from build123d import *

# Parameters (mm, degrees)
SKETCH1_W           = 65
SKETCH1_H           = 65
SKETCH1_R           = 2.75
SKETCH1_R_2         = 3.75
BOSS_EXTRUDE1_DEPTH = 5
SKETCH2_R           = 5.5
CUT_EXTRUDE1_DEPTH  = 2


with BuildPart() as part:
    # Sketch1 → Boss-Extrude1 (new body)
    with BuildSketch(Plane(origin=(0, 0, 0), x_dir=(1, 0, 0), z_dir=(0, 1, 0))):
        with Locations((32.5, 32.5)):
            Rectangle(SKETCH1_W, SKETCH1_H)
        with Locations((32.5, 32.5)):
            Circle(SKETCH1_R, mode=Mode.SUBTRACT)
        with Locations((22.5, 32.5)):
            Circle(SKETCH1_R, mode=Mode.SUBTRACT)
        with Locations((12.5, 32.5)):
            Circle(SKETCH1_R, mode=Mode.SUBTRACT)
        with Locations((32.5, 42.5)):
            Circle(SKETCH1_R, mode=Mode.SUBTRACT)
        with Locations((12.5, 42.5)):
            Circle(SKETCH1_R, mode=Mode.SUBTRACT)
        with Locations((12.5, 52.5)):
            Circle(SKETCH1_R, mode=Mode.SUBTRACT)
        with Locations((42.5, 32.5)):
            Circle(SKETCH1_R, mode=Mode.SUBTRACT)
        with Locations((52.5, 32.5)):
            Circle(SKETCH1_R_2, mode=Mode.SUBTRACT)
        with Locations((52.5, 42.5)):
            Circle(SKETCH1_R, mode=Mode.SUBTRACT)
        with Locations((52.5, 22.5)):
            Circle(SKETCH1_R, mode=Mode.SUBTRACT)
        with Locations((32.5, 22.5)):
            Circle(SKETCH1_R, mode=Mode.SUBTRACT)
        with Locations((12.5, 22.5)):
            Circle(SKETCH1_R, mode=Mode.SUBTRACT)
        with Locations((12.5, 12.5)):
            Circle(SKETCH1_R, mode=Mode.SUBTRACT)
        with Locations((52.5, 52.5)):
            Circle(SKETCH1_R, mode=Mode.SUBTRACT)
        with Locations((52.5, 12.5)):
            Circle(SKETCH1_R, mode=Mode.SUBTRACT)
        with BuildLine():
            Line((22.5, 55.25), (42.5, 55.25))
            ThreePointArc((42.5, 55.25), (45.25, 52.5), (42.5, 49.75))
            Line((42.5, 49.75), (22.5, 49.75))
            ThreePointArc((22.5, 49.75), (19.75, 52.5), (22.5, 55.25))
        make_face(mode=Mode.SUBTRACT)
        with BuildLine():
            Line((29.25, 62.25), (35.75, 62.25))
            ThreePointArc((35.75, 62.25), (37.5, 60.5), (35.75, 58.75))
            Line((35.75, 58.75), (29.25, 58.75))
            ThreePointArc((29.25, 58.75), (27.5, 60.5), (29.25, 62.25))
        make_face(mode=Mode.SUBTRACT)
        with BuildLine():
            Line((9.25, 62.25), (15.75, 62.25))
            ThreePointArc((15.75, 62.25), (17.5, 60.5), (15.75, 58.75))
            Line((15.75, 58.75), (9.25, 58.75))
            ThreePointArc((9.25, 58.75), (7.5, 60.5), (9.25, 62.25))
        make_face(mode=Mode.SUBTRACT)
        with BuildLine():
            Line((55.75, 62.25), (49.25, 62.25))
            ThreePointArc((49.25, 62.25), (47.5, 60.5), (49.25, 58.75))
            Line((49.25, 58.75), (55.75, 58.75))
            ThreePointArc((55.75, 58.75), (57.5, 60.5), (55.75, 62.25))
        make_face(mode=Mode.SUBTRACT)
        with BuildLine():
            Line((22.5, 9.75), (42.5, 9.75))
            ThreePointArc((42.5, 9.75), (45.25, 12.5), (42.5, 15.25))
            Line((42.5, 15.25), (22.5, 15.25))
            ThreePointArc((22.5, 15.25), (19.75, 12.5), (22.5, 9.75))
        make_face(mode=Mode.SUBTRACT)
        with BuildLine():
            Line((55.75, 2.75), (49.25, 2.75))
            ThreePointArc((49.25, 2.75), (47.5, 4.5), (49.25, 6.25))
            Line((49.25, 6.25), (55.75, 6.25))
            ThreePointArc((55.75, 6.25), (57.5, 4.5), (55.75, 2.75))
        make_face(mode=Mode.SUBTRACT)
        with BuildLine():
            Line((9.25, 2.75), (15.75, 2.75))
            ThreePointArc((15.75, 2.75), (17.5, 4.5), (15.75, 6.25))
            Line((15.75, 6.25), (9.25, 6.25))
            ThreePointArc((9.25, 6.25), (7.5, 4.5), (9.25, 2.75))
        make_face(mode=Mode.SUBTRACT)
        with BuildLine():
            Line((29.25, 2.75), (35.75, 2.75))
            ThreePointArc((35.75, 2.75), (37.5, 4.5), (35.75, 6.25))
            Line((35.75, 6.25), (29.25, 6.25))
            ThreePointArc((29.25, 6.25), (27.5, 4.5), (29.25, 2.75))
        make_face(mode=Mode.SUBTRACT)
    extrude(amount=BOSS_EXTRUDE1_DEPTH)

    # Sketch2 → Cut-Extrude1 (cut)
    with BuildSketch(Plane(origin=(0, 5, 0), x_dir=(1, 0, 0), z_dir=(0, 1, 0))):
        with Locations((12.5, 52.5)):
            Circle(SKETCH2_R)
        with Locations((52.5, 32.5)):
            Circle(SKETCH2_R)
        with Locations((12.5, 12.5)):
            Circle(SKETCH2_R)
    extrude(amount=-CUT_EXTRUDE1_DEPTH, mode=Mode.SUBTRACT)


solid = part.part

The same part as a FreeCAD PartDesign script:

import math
import FreeCAD as App
import Part
import Sketcher

V = App.Vector

doc = App.newDocument("Part")
body = doc.addObject("PartDesign::Body", "Body")

# Sketch on XZ plane
sketch1 = doc.addObject("Sketcher::SketchObject", "Sketch")
body.addObject(sketch1)
sketch1.AttachmentSupport = (doc.XZ_Plane, [""])
sketch1.MapMode = "FlatFace"
sketch1.addGeometry(Part.LineSegment(V(0, -65, 0), V(0, 0, 0)), False)
sketch1.addGeometry(Part.LineSegment(V(0, 0, 0), V(65, 0, 0)), False)
sketch1.addGeometry(Part.LineSegment(V(65, 0, 0), V(65, -65, 0)), False)
sketch1.addGeometry(Part.LineSegment(V(65, -65, 0), V(0, -65, 0)), False)
sketch1.addGeometry(Part.LineSegment(V(15.75, -2.75, 0), V(9.25, -2.75, 0)), False)
sketch1.addGeometry(Part.ArcOfCircle(Part.Circle(V(9.25, -4.5, 0), V(0, 0, 1), 1.75), math.radians(90), math.radians(270)), False)
sketch1.addGeometry(Part.LineSegment(V(9.25, -6.25, 0), V(15.75, -6.25, 0)), False)
sketch1.addGeometry(Part.ArcOfCircle(Part.Circle(V(15.75, -4.5, 0), V(0, 0, 1), 1.75), math.radians(-90), math.radians(90)), False)
sketch1.addGeometry(Part.Circle(V(12.5, -12.5, 0), V(0, 0, 1), 2.75), False)
sketch1.addGeometry(Part.Circle(V(12.5, -22.5, 0), V(0, 0, 1), 2.75), False)
sketch1.addGeometry(Part.LineSegment(V(35.75, -2.75, 0), V(29.25, -2.75, 0)), False)
sketch1.addGeometry(Part.ArcOfCircle(Part.Circle(V(29.25, -4.5, 0), V(0, 0, 1), 1.75), math.radians(90), math.radians(270)), False)
sketch1.addGeometry(Part.LineSegment(V(29.25, -6.25, 0), V(35.75, -6.25, 0)), False)
sketch1.addGeometry(Part.ArcOfCircle(Part.Circle(V(35.75, -4.5, 0), V(0, 0, 1), 1.75), math.radians(-90), math.radians(90)), False)
sketch1.addGeometry(Part.LineSegment(V(42.5, -9.75, 0), V(22.5, -9.75, 0)), False)
sketch1.addGeometry(Part.ArcOfCircle(Part.Circle(V(22.5, -12.5, 0), V(0, 0, 1), 2.75), math.radians(90), math.radians(270)), False)
sketch1.addGeometry(Part.LineSegment(V(22.5, -15.25, 0), V(42.5, -15.25, 0)), False)
sketch1.addGeometry(Part.ArcOfCircle(Part.Circle(V(42.5, -12.5, 0), V(0, 0, 1), 2.75), math.radians(-90), math.radians(90)), False)
sketch1.addGeometry(Part.ArcOfCircle(Part.Circle(V(55.75, -4.5, 0), V(0, 0, 1), 1.75), math.radians(-90), math.radians(90)), False)
sketch1.addGeometry(Part.LineSegment(V(55.75, -2.75, 0), V(49.25, -2.75, 0)), False)
sketch1.addGeometry(Part.ArcOfCircle(Part.Circle(V(49.25, -4.5, 0), V(0, 0, 1), 1.75), math.radians(90), math.radians(270)), False)
sketch1.addGeometry(Part.LineSegment(V(49.25, -6.25, 0), V(55.75, -6.25, 0)), False)
sketch1.addGeometry(Part.Circle(V(52.5, -12.5, 0), V(0, 0, 1), 2.75), False)
sketch1.addGeometry(Part.Circle(V(32.5, -22.5, 0), V(0, 0, 1), 2.75), False)
sketch1.addGeometry(Part.Circle(V(52.5, -22.5, 0), V(0, 0, 1), 2.75), False)
sketch1.addGeometry(Part.Circle(V(12.5, -32.5, 0), V(0, 0, 1), 2.75), False)
sketch1.addGeometry(Part.Circle(V(12.5, -42.5, 0), V(0, 0, 1), 2.75), False)
sketch1.addGeometry(Part.Circle(V(22.5, -32.5, 0), V(0, 0, 1), 2.75), False)
sketch1.addGeometry(Part.Circle(V(12.5, -52.5, 0), V(0, 0, 1), 2.75), False)
sketch1.addGeometry(Part.ArcOfCircle(Part.Circle(V(9.25, -60.5, 0), V(0, 0, 1), 1.75), math.radians(90), math.radians(270)), False)
sketch1.addGeometry(Part.LineSegment(V(9.25, -62.25, 0), V(15.75, -62.25, 0)), False)
sketch1.addGeometry(Part.ArcOfCircle(Part.Circle(V(15.75, -60.5, 0), V(0, 0, 1), 1.75), math.radians(-90), math.radians(90)), False)
sketch1.addGeometry(Part.LineSegment(V(15.75, -58.75, 0), V(9.25, -58.75, 0)), False)
sketch1.addGeometry(Part.Circle(V(32.5, -32.5, 0), V(0, 0, 1), 2.75), False)
sketch1.addGeometry(Part.Circle(V(42.5, -32.5, 0), V(0, 0, 1), 2.75), False)
sketch1.addGeometry(Part.Circle(V(32.5, -42.5, 0), V(0, 0, 1), 2.75), False)
sketch1.addGeometry(Part.Circle(V(52.5, -32.5, 0), V(0, 0, 1), 3.75), False)
sketch1.addGeometry(Part.Circle(V(52.5, -42.5, 0), V(0, 0, 1), 2.75), False)
sketch1.addGeometry(Part.ArcOfCircle(Part.Circle(V(22.5, -52.5, 0), V(0, 0, 1), 2.75), math.radians(90), math.radians(270)), False)
sketch1.addGeometry(Part.LineSegment(V(22.5, -55.25, 0), V(42.5, -55.25, 0)), False)
sketch1.addGeometry(Part.ArcOfCircle(Part.Circle(V(42.5, -52.5, 0), V(0, 0, 1), 2.75), math.radians(-90), math.radians(90)), False)
sketch1.addGeometry(Part.LineSegment(V(42.5, -49.75, 0), V(22.5, -49.75, 0)), False)
sketch1.addGeometry(Part.ArcOfCircle(Part.Circle(V(29.25, -60.5, 0), V(0, 0, 1), 1.75), math.radians(90), math.radians(270)), False)
sketch1.addGeometry(Part.LineSegment(V(29.25, -62.25, 0), V(35.75, -62.25, 0)), False)
sketch1.addGeometry(Part.ArcOfCircle(Part.Circle(V(35.75, -60.5, 0), V(0, 0, 1), 1.75), math.radians(-90), math.radians(90)), False)
sketch1.addGeometry(Part.LineSegment(V(35.75, -58.75, 0), V(29.25, -58.75, 0)), False)
sketch1.addGeometry(Part.Circle(V(52.5, -52.5, 0), V(0, 0, 1), 2.75), False)
sketch1.addGeometry(Part.LineSegment(V(49.25, -62.25, 0), V(55.75, -62.25, 0)), False)
sketch1.addGeometry(Part.ArcOfCircle(Part.Circle(V(55.75, -60.5, 0), V(0, 0, 1), 1.75), math.radians(-90), math.radians(90)), False)
sketch1.addGeometry(Part.LineSegment(V(55.75, -58.75, 0), V(49.25, -58.75, 0)), False)
sketch1.addGeometry(Part.ArcOfCircle(Part.Circle(V(49.25, -60.5, 0), V(0, 0, 1), 1.75), math.radians(90), math.radians(270)), False)
sketch1.addConstraint(Sketcher.Constraint("Coincident", 0, 2, 1, 1))
sketch1.addConstraint(Sketcher.Constraint("Coincident", 1, 2, 2, 1))
sketch1.addConstraint(Sketcher.Constraint("Coincident", 2, 2, 3, 1))
sketch1.addConstraint(Sketcher.Constraint("Coincident", 3, 2, 0, 1))
sketch1.addConstraint(Sketcher.Constraint("Tangent", 4, 2, 5, 1))
sketch1.addConstraint(Sketcher.Constraint("Tangent", 5, 2, 6, 1))
sketch1.addConstraint(Sketcher.Constraint("Tangent", 6, 2, 7, 1))
sketch1.addConstraint(Sketcher.Constraint("Tangent", 7, 2, 4, 1))
sketch1.addConstraint(Sketcher.Constraint("Tangent", 10, 2, 11, 1))
sketch1.addConstraint(Sketcher.Constraint("Tangent", 11, 2, 12, 1))
sketch1.addConstraint(Sketcher.Constraint("Tangent", 12, 2, 13, 1))
sketch1.addConstraint(Sketcher.Constraint("Tangent", 13, 2, 10, 1))
sketch1.addConstraint(Sketcher.Constraint("Tangent", 14, 2, 15, 1))
sketch1.addConstraint(Sketcher.Constraint("Tangent", 15, 2, 16, 1))
sketch1.addConstraint(Sketcher.Constraint("Tangent", 16, 2, 17, 1))
sketch1.addConstraint(Sketcher.Constraint("Tangent", 17, 2, 14, 1))
sketch1.addConstraint(Sketcher.Constraint("Tangent", 18, 2, 19, 1))
sketch1.addConstraint(Sketcher.Constraint("Tangent", 19, 2, 20, 1))
sketch1.addConstraint(Sketcher.Constraint("Tangent", 20, 2, 21, 1))
sketch1.addConstraint(Sketcher.Constraint("Tangent", 21, 2, 18, 1))
sketch1.addConstraint(Sketcher.Constraint("Tangent", 29, 2, 30, 1))
sketch1.addConstraint(Sketcher.Constraint("Tangent", 30, 2, 31, 1))
sketch1.addConstraint(Sketcher.Constraint("Tangent", 31, 2, 32, 1))
sketch1.addConstraint(Sketcher.Constraint("Tangent", 32, 2, 29, 1))
sketch1.addConstraint(Sketcher.Constraint("Tangent", 38, 2, 39, 1))
sketch1.addConstraint(Sketcher.Constraint("Tangent", 39, 2, 40, 1))
sketch1.addConstraint(Sketcher.Constraint("Tangent", 40, 2, 41, 1))
sketch1.addConstraint(Sketcher.Constraint("Tangent", 41, 2, 38, 1))
sketch1.addConstraint(Sketcher.Constraint("Tangent", 42, 2, 43, 1))
sketch1.addConstraint(Sketcher.Constraint("Tangent", 43, 2, 44, 1))
sketch1.addConstraint(Sketcher.Constraint("Tangent", 44, 2, 45, 1))
sketch1.addConstraint(Sketcher.Constraint("Tangent", 45, 2, 42, 1))
sketch1.addConstraint(Sketcher.Constraint("Tangent", 47, 2, 48, 1))
sketch1.addConstraint(Sketcher.Constraint("Tangent", 48, 2, 49, 1))
sketch1.addConstraint(Sketcher.Constraint("Tangent", 49, 2, 50, 1))
sketch1.addConstraint(Sketcher.Constraint("Tangent", 50, 2, 47, 1))
sketch1.addConstraint(Sketcher.Constraint("Vertical", 0))
sketch1.addConstraint(Sketcher.Constraint("Horizontal", 1))
sketch1.addConstraint(Sketcher.Constraint("Vertical", 2))
sketch1.addConstraint(Sketcher.Constraint("Horizontal", 3))
sketch1.addConstraint(Sketcher.Constraint("Horizontal", 4))
sketch1.addConstraint(Sketcher.Constraint("Horizontal", 6))
sketch1.addConstraint(Sketcher.Constraint("Horizontal", 10))
sketch1.addConstraint(Sketcher.Constraint("Horizontal", 12))
sketch1.addConstraint(Sketcher.Constraint("Horizontal", 14))
sketch1.addConstraint(Sketcher.Constraint("Horizontal", 16))
sketch1.addConstraint(Sketcher.Constraint("Horizontal", 19))
sketch1.addConstraint(Sketcher.Constraint("Horizontal", 21))
sketch1.addConstraint(Sketcher.Constraint("Horizontal", 30))
sketch1.addConstraint(Sketcher.Constraint("Horizontal", 32))
sketch1.addConstraint(Sketcher.Constraint("Horizontal", 39))
sketch1.addConstraint(Sketcher.Constraint("Horizontal", 41))
sketch1.addConstraint(Sketcher.Constraint("Horizontal", 43))
sketch1.addConstraint(Sketcher.Constraint("Horizontal", 45))
sketch1.addConstraint(Sketcher.Constraint("Horizontal", 47))
sketch1.addConstraint(Sketcher.Constraint("Horizontal", 49))
sketch1.addConstraint(Sketcher.Constraint("Coincident", 0, 2, -1, 1))
sketch1.addConstraint(Sketcher.Constraint("Equal", 8, 9))
sketch1.addConstraint(Sketcher.Constraint("Equal", 7, 11))
sketch1.addConstraint(Sketcher.Constraint("Equal", 9, 15))
sketch1.addConstraint(Sketcher.Constraint("Equal", 13, 18))
sketch1.addConstraint(Sketcher.Constraint("Equal", 17, 22))
sketch1.addConstraint(Sketcher.Constraint("Equal", 22, 23))
sketch1.addConstraint(Sketcher.Constraint("Equal", 23, 24))
sketch1.addConstraint(Sketcher.Constraint("Equal", 24, 25))
sketch1.addConstraint(Sketcher.Constraint("Equal", 25, 26))
sketch1.addConstraint(Sketcher.Constraint("Equal", 26, 27))
sketch1.addConstraint(Sketcher.Constraint("Equal", 27, 28))
sketch1.addConstraint(Sketcher.Constraint("Equal", 20, 29))
sketch1.addConstraint(Sketcher.Constraint("Equal", 28, 33))
sketch1.addConstraint(Sketcher.Constraint("Equal", 33, 34))
sketch1.addConstraint(Sketcher.Constraint("Equal", 34, 35))
sketch1.addConstraint(Sketcher.Constraint("Equal", 35, 37))
sketch1.addConstraint(Sketcher.Constraint("Equal", 37, 38))
sketch1.addConstraint(Sketcher.Constraint("Equal", 31, 42))
sketch1.addConstraint(Sketcher.Constraint("Equal", 40, 46))
sketch1.addConstraint(Sketcher.Constraint("Equal", 44, 48))
sketch1.addConstraint(Sketcher.Constraint("Horizontal", 7, 3, 11, 3))
sketch1.addConstraint(Sketcher.Constraint("Horizontal", 8, 3, 15, 3))
sketch1.addConstraint(Sketcher.Constraint("Horizontal", 13, 3, 18, 3))
sketch1.addConstraint(Sketcher.Constraint("Horizontal", 17, 3, 22, 3))
sketch1.addConstraint(Sketcher.Constraint("Horizontal", 9, 3, 23, 3))
sketch1.addConstraint(Sketcher.Constraint("Horizontal", 23, 3, 24, 3))
sketch1.addConstraint(Sketcher.Constraint("Horizontal", 25, 3, 27, 3))
sketch1.addConstraint(Sketcher.Constraint("Horizontal", 27, 3, 33, 3))
sketch1.addConstraint(Sketcher.Constraint("Horizontal", 33, 3, 34, 3))
sketch1.addConstraint(Sketcher.Constraint("Horizontal", 26, 3, 35, 3))
sketch1.addConstraint(Sketcher.Constraint("Horizontal", 34, 3, 36, 3))
sketch1.addConstraint(Sketcher.Constraint("Horizontal", 35, 3, 37, 3))
sketch1.addConstraint(Sketcher.Constraint("Horizontal", 28, 3, 38, 3))
sketch1.addConstraint(Sketcher.Constraint("Horizontal", 31, 3, 42, 3))
sketch1.addConstraint(Sketcher.Constraint("Horizontal", 40, 3, 46, 3))
sketch1.addConstraint(Sketcher.Constraint("Horizontal", 44, 3, 48, 3))
sketch1.addConstraint(Sketcher.Constraint("Vertical", 8, 3, 9, 3))
sketch1.addConstraint(Sketcher.Constraint("Vertical", 22, 3, 24, 3))
sketch1.addConstraint(Sketcher.Constraint("Vertical", 9, 3, 25, 3))
sketch1.addConstraint(Sketcher.Constraint("Vertical", 25, 3, 26, 3))
sketch1.addConstraint(Sketcher.Constraint("Vertical", 15, 3, 27, 3))
sketch1.addConstraint(Sketcher.Constraint("Vertical", 26, 3, 28, 3))
sketch1.addConstraint(Sketcher.Constraint("Vertical", 5, 3, 29, 3))
sketch1.addConstraint(Sketcher.Constraint("Vertical", 7, 3, 31, 3))
sketch1.addConstraint(Sketcher.Constraint("Vertical", 23, 3, 33, 3))
sketch1.addConstraint(Sketcher.Constraint("Vertical", 17, 3, 34, 3))
sketch1.addConstraint(Sketcher.Constraint("Vertical", 33, 3, 35, 3))
sketch1.addConstraint(Sketcher.Constraint("Vertical", 24, 3, 36, 3))
sketch1.addConstraint(Sketcher.Constraint("Vertical", 36, 3, 37, 3))
sketch1.addConstraint(Sketcher.Constraint("Vertical", 27, 3, 38, 3))
sketch1.addConstraint(Sketcher.Constraint("Vertical", 34, 3, 40, 3))
sketch1.addConstraint(Sketcher.Constraint("Vertical", 11, 3, 42, 3))
sketch1.addConstraint(Sketcher.Constraint("Vertical", 13, 3, 44, 3))
sketch1.addConstraint(Sketcher.Constraint("Vertical", 37, 3, 46, 3))
sketch1.addConstraint(Sketcher.Constraint("Vertical", 18, 3, 48, 3))
sketch1.addConstraint(Sketcher.Constraint("Vertical", 20, 3, 50, 3))
sketch1.addConstraint(Sketcher.Constraint("Equal", 6, 10))
sketch1.addConstraint(Sketcher.Constraint("Equal", 12, 19))
sketch1.addConstraint(Sketcher.Constraint("Equal", 3, 0))
sketch1.addConstraint(Sketcher.Constraint("Diameter", 8, 5.5))
sketch1.addConstraint(Sketcher.Constraint("Diameter", 36, 7.5))
sketch1.addConstraint(Sketcher.Constraint("DistanceX", 1, 1, 1, 2, 65.0))
sketch1.addConstraint(Sketcher.Constraint("DistanceX", 14, 2, 14, 1, 20.0))
sketch1.addConstraint(Sketcher.Constraint("Radius", 5, 1.75))
sketch1.addConstraint(Sketcher.Constraint("DistanceX", 4, 2, 4, 1, 6.5))
sketch1.addConstraint(Sketcher.Constraint("DistanceY", 5, 3, -1, 1, 4.5))
sketch1.addConstraint(Sketcher.Constraint("DistanceX", -1, 1, 8, 3, 12.5))
sketch1.addConstraint(Sketcher.Constraint("DistanceY", 8, 3, -1, 1, 12.5))
sketch1.addConstraint(Sketcher.Constraint("DistanceY", 9, 3, -1, 1, 22.5))
sketch1.addConstraint(Sketcher.Constraint("DistanceX", -1, 1, 15, 3, 22.5))
sketch1.addConstraint(Sketcher.Constraint("DistanceX", -1, 1, 22, 3, 52.5))
sketch1.addConstraint(Sketcher.Constraint("DistanceX", -1, 1, 23, 3, 32.5))
sketch1.addConstraint(Sketcher.Constraint("DistanceY", 25, 3, -1, 1, 32.5))
sketch1.addConstraint(Sketcher.Constraint("DistanceY", 26, 3, -1, 1, 42.5))
sketch1.addConstraint(Sketcher.Constraint("DistanceY", 28, 3, -1, 1, 52.5))
sketch1.addConstraint(Sketcher.Constraint("DistanceY", 29, 3, -1, 1, 60.5))
sketch1.addConstraint(Sketcher.Constraint("DistanceX", -1, 1, 5, 3, 9.25))
sketch1.addConstraint(Sketcher.Constraint("DistanceX", -1, 1, 11, 3, 29.25))
sketch1.addConstraint(Sketcher.Constraint("DistanceX", -1, 1, 18, 3, 55.75))
pad1 = doc.addObject("PartDesign::Pad", "Pad")
body.addObject(pad1)
pad1.Profile = sketch1
pad1.Length = 5
pad1.Reversed = True

# Sketch on XZ plane
sketch2 = doc.addObject("Sketcher::SketchObject", "Sketch001")
body.addObject(sketch2)
sketch2.AttachmentSupport = (doc.XZ_Plane, [""])
sketch2.MapMode = "FlatFace"
sketch2.AttachmentOffset = App.Placement(V(0, 0, -5), App.Rotation())
sketch2.addGeometry(Part.Circle(V(12.5, -52.5, 0), V(0, 0, 1), 5.5), False)
sketch2.addGeometry(Part.Circle(V(52.5, -32.5, 0), V(0, 0, 1), 5.5), False)
sketch2.addGeometry(Part.Circle(V(12.5, -12.5, 0), V(0, 0, 1), 5.5), False)
sketch2.addConstraint(Sketcher.Constraint("Equal", 0, 1))
sketch2.addConstraint(Sketcher.Constraint("Equal", 1, 2))
sketch2.addConstraint(Sketcher.Constraint("Vertical", 0, 3, 2, 3))
sketch2.addConstraint(Sketcher.Constraint("Diameter", 0, 11.0))
sketch2.addConstraint(Sketcher.Constraint("DistanceX", 0, 3, 1, 3, 40.0))
sketch2.addConstraint(Sketcher.Constraint("DistanceY", 0, 3, 1, 3, 20.0))
sketch2.addConstraint(Sketcher.Constraint("DistanceY", 0, 3, 2, 3, 40.0))
sketch2.addConstraint(Sketcher.Constraint("DistanceX", -1, 1, 0, 3, 12.5))
sketch2.addConstraint(Sketcher.Constraint("DistanceY", 0, 3, -1, 1, 52.5))
pocket1 = doc.addObject("PartDesign::Pocket", "Pocket")
body.addObject(pocket1)
pocket1.Profile = sketch2
pocket1.Length = 2
pocket1.Reversed = True

doc.recompute()
